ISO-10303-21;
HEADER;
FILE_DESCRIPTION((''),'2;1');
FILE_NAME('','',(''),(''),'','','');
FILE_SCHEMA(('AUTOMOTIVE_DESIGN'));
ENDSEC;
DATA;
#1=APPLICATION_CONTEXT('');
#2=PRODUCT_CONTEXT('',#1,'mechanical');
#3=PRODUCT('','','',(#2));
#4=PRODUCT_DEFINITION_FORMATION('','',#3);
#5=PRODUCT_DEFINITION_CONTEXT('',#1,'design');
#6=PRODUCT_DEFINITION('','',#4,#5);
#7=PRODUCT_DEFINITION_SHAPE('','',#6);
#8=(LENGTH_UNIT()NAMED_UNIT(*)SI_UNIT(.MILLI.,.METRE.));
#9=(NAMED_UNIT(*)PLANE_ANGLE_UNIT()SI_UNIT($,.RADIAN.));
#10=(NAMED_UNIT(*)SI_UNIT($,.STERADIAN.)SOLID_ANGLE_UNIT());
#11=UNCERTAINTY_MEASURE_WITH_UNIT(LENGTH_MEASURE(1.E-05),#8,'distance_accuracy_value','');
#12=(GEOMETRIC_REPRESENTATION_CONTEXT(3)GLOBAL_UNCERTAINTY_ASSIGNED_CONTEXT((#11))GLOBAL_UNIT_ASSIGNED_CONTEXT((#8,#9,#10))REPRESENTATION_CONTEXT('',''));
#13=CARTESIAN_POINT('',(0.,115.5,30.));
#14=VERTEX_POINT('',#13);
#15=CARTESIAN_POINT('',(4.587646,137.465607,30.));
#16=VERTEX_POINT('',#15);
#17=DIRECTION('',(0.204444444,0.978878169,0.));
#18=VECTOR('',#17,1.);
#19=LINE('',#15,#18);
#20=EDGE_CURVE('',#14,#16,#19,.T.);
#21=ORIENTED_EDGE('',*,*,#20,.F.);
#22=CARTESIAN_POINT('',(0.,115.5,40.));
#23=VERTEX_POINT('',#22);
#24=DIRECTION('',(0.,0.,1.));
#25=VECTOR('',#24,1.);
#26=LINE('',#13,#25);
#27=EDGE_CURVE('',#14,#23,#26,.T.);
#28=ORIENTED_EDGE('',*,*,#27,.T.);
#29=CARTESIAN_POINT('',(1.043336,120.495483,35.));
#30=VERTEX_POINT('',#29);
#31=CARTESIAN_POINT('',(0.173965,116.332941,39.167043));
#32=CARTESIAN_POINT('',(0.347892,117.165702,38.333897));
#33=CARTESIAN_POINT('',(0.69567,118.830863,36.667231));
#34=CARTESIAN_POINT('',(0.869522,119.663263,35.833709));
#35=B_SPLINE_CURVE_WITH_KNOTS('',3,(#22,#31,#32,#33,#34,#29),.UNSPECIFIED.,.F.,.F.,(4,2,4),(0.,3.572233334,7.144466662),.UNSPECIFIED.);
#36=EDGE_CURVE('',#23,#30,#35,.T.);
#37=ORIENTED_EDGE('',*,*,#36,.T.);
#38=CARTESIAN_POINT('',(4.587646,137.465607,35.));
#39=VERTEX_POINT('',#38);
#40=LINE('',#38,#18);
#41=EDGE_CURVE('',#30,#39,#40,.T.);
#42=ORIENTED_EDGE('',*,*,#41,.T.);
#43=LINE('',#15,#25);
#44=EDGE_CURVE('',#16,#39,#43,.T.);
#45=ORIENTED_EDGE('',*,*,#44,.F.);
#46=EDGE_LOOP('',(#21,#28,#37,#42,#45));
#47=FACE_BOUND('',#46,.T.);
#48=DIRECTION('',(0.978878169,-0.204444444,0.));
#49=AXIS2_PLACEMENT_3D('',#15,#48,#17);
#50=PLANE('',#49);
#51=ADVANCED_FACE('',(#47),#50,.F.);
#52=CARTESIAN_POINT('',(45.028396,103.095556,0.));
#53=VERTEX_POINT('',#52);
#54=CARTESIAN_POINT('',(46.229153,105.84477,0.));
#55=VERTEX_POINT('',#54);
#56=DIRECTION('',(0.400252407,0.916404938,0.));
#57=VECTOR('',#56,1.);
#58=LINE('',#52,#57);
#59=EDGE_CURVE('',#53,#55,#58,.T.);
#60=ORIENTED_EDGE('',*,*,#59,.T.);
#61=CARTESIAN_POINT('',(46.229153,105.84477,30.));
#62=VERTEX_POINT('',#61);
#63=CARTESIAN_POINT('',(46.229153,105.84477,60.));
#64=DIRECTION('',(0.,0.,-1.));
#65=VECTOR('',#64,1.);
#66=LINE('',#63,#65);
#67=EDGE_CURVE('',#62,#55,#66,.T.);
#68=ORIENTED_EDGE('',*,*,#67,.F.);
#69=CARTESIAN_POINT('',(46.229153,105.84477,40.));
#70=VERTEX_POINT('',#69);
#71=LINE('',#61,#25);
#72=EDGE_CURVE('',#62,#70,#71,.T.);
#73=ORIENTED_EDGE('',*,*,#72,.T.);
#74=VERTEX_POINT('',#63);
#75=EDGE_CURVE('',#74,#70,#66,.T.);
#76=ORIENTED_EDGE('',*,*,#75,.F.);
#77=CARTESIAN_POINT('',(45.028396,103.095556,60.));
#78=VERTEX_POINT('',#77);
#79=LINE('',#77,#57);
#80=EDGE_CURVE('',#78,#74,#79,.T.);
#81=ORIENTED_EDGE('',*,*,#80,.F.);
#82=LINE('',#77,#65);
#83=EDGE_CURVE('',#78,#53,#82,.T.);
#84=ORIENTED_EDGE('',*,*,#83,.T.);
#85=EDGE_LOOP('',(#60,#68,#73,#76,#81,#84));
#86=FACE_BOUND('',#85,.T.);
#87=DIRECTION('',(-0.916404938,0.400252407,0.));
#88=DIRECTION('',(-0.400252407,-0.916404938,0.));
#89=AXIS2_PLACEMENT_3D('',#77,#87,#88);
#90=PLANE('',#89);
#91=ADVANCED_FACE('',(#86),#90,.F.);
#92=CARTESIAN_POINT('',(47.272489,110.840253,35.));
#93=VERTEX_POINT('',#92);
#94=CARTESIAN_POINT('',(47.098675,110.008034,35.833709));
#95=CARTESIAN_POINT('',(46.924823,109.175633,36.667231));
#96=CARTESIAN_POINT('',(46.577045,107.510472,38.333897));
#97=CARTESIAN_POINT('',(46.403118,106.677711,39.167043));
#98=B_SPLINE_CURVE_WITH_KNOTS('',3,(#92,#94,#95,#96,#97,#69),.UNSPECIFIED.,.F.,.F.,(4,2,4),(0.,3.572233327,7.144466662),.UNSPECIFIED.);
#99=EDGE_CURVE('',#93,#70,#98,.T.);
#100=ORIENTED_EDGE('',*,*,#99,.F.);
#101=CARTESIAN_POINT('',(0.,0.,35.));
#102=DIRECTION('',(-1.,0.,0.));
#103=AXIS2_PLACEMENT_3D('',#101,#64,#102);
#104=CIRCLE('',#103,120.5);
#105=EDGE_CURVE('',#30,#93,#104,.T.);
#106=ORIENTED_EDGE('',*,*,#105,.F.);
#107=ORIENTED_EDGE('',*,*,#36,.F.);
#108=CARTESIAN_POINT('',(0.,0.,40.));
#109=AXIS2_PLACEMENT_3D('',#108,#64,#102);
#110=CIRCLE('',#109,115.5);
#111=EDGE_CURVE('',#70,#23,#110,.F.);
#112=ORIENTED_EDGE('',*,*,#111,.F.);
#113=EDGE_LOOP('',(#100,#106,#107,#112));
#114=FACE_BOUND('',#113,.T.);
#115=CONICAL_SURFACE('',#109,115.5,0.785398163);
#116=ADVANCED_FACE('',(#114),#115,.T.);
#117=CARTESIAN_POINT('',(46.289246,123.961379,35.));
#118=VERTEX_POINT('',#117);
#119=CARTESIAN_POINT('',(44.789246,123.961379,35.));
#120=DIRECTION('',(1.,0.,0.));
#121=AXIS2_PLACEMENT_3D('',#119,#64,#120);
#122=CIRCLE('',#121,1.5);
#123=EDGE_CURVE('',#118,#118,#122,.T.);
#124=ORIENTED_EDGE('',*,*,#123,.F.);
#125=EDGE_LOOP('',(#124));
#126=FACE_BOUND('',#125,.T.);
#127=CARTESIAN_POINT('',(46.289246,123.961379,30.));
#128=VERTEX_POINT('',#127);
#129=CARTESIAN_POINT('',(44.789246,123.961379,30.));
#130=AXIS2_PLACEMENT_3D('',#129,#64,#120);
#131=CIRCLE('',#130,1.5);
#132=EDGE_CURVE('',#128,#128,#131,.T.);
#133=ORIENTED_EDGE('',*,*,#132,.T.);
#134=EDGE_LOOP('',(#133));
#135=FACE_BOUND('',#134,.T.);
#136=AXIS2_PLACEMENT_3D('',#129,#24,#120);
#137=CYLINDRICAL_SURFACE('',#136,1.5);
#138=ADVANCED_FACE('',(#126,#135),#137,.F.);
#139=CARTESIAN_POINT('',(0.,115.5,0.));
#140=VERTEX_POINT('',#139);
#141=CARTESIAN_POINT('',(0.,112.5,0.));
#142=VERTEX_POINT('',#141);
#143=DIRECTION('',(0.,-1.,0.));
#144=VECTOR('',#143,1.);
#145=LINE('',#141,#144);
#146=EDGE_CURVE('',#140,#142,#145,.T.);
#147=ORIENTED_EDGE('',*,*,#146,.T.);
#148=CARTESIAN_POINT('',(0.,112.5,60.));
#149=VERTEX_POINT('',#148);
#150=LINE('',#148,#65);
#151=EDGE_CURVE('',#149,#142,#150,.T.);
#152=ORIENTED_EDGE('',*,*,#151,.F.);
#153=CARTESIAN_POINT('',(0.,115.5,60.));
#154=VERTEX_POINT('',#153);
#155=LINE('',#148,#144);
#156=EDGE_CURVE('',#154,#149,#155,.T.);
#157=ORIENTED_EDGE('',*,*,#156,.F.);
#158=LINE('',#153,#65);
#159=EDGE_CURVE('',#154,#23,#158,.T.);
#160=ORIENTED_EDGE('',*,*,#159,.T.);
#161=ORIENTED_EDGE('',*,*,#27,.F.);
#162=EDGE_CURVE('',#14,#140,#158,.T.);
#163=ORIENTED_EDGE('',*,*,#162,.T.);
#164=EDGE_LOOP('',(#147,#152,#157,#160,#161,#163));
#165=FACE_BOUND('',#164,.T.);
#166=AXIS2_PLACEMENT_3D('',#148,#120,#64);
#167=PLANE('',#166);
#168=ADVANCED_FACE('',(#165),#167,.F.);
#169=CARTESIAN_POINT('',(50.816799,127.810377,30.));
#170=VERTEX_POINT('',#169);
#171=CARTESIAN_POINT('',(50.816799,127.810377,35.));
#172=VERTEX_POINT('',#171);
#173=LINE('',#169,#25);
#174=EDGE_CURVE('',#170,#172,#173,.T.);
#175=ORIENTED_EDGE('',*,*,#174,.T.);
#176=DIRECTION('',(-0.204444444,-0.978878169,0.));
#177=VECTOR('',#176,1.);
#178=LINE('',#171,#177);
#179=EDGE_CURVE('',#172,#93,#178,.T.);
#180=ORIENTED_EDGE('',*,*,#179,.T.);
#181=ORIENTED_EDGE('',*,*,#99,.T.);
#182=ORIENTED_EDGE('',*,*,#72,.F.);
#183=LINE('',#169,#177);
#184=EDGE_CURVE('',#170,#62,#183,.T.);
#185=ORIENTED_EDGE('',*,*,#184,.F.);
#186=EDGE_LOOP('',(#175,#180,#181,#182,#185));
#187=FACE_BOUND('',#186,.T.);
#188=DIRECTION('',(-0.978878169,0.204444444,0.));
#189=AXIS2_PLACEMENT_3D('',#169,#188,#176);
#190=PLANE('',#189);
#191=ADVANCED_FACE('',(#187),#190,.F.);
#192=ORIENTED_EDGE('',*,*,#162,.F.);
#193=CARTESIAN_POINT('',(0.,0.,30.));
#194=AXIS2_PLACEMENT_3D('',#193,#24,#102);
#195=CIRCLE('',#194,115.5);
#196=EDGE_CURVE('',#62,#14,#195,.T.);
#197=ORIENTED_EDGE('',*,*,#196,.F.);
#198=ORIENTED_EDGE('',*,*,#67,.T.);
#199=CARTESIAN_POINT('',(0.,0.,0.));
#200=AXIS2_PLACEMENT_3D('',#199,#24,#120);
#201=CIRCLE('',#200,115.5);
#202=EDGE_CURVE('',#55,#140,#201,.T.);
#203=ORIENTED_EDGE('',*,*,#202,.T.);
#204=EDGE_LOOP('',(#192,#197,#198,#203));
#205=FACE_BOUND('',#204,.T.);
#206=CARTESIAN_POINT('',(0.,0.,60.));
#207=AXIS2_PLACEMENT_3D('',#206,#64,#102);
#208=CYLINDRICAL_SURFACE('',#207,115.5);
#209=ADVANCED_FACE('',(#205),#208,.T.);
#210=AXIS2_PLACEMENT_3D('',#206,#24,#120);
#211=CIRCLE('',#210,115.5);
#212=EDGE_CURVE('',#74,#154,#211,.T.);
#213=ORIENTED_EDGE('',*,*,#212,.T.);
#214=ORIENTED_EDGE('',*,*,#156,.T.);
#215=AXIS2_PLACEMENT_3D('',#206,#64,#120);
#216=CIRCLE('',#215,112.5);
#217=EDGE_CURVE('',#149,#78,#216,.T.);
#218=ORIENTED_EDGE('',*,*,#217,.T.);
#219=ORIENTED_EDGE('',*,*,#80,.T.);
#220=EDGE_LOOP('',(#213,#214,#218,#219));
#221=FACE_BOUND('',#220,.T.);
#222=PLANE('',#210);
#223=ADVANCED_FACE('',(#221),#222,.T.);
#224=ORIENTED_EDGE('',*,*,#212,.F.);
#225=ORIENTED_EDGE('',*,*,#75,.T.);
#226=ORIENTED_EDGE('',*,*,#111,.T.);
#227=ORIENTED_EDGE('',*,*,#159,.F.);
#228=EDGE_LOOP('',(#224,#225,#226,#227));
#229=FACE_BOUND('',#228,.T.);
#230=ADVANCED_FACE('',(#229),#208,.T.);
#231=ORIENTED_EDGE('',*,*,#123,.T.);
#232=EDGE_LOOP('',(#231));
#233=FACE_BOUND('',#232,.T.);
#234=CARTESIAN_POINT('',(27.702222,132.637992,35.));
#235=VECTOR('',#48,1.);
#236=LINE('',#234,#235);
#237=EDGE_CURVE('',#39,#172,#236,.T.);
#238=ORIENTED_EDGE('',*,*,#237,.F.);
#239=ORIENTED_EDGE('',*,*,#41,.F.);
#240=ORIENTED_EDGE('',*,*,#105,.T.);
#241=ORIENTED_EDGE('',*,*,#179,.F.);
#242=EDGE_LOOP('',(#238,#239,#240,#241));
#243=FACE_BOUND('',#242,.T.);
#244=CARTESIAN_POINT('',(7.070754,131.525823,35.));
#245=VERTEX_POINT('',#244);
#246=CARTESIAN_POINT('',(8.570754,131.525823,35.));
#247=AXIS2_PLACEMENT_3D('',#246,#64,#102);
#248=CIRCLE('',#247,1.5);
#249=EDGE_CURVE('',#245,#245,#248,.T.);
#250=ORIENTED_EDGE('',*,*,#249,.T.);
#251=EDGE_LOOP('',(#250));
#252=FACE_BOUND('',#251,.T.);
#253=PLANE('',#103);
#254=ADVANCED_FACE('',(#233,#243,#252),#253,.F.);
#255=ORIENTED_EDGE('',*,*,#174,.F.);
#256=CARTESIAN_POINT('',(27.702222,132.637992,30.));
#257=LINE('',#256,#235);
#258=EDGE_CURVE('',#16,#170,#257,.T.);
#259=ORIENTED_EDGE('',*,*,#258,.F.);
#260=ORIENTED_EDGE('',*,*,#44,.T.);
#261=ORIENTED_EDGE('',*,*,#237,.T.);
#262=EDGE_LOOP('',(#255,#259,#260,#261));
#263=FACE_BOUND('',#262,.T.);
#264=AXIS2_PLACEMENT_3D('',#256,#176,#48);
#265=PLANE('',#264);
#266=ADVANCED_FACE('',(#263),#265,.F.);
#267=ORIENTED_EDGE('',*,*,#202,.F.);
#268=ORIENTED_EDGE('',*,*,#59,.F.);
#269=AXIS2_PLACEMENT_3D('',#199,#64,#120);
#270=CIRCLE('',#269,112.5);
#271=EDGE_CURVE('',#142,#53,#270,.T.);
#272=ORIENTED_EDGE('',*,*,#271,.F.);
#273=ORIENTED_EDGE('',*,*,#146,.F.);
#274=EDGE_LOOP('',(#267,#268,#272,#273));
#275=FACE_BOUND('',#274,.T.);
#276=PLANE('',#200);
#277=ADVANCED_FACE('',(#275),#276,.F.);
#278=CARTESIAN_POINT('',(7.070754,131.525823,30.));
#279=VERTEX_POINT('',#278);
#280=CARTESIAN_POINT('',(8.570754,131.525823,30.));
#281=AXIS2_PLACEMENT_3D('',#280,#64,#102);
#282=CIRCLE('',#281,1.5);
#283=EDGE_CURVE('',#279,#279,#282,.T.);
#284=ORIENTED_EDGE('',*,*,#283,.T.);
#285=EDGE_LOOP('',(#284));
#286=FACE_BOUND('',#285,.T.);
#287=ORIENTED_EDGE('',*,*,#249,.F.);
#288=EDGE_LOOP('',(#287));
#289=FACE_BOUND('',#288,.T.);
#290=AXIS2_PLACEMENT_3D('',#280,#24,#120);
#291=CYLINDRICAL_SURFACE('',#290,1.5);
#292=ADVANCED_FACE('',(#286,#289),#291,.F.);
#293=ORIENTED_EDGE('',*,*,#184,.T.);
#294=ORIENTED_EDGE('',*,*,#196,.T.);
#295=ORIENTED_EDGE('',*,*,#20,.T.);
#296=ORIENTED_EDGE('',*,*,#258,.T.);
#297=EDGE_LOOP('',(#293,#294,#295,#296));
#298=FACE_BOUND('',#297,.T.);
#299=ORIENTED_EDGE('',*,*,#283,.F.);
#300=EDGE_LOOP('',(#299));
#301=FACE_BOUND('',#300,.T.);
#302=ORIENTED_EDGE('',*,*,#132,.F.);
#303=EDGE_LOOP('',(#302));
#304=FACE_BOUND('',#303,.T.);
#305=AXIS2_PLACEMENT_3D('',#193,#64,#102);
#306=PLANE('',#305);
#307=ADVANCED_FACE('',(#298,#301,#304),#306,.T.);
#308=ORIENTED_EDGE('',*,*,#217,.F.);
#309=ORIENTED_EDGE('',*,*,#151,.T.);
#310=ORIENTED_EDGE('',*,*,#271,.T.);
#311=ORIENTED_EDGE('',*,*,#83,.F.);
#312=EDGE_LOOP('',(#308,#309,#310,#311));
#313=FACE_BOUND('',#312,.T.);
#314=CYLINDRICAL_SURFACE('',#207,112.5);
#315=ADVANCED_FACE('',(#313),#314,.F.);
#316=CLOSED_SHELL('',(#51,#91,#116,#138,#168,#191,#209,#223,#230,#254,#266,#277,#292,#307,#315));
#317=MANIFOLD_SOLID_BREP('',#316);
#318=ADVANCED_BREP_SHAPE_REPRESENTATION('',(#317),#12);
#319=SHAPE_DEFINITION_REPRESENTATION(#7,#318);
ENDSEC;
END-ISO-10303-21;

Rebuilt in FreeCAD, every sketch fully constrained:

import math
import FreeCAD as App
import Part
import Sketcher
Q = App.Units.Quantity


def edges_at(feature, points):
    """Names of the edges that pass closest to the given points."""
    edges = feature.Shape.Edges
    near = lambda p: min(range(len(edges)), key=lambda i: edges[i].distToShape(Part.Vertex(*p))[0])
    return sorted({f"Edge{near(p) + 1}" for p in points})

doc = App.newDocument("Part")
body = doc.addObject("PartDesign::Body", "Body")

sketch1 = body.newObject("Sketcher::SketchObject", "Sketch")
sketch1.AttachmentSupport = (doc.getObject("XY_Plane"), [""])
sketch1.MapMode = "FlatFace"
sketch1.addGeometry([
    Part.LineSegment(App.Vector(0, 115.5, 0), App.Vector(0, 112.5, 0)),
    Part.ArcOfCircle(Part.Circle(App.Vector(0, 0, 0), App.Vector(0, 0, 1), 112.5), math.radians(66), math.radians(90)),
    Part.LineSegment(App.Vector(45, 103.1, 0), App.Vector(46.2, 105.8, 0)),
    Part.ArcOfCircle(Part.Circle(App.Vector(0, 0, 0), App.Vector(0, 0, 1), 115.5), math.radians(66), math.radians(90)),
], False)
sketch1.addConstraint([
    Sketcher.Constraint("Coincident", 0, 2, 1, 2),
    Sketcher.Constraint("Coincident", 1, 1, 2, 1),
    Sketcher.Constraint("Coincident", 2, 2, 3, 1),
    Sketcher.Constraint("Coincident", 3, 2, 0, 1),
    Sketcher.Constraint("Vertical", 0),
    Sketcher.Constraint("Coincident", 1, 3, -1, 1),
    Sketcher.Constraint("Coincident", 3, 3, -1, 1),
    Sketcher.Constraint("PointOnObject", 0, 2, -2),
    Sketcher.Constraint("Radius", 1, Q("112.5 mm")),
    Sketcher.Constraint("Radius", 3, Q("115.5 mm")),
    Sketcher.Constraint("DistanceY", -1, 1, 2, 2, Q("105.84477 mm")),
    Sketcher.Constraint("DistanceX", -1, 1, 1, 1, Q("45.028396 mm")),
])
pad1 = body.newObject("PartDesign::Pad", "Pad")
pad1.Profile = sketch1
pad1.Length = 60

sketch2 = body.newObject("Sketcher::SketchObject", "Sketch001")
sketch2.AttachmentSupport = (doc.getObject("XY_Plane"), [""])
sketch2.MapMode = "FlatFace"
sketch2.AttachmentOffset = App.Placement(App.Vector(0, 0, 30), App.Rotation())
sketch2.addGeometry([
    Part.LineSegment(App.Vector(4.6, 137.5, 0), App.Vector(27.7, 132.6, 0)),
    Part.LineSegment(App.Vector(27.7, 132.6, 0), App.Vector(50.8, 127.8, 0)),
    Part.LineSegment(App.Vector(50.8, 127.8, 0), App.Vector(46.2, 105.8, 0)),
    Part.ArcOfCircle(Part.Circle(App.Vector(0, 0, 0), App.Vector(0, 0, 1), 115.5), math.radians(66), math.radians(90)),
    Part.LineSegment(App.Vector(0, 115.5, 0), App.Vector(4.6, 137.5, 0)),
    Part.Circle(App.Vector(44.8, 124, 0), App.Vector(0, 0, 1), 1.5),
    Part.Circle(App.Vector(8.6, 131.5, 0), App.Vector(0, 0, 1), 1.5),
], False)
sketch2.addConstraint([
    Sketcher.Constraint("Coincident", 0, 2, 1, 1),
    Sketcher.Constraint("Coincident", 1, 2, 2, 1),
    Sketcher.Constraint("Coincident", 2, 2, 3, 1),
    Sketcher.Constraint("Coincident", 3, 2, 4, 1),
    Sketcher.Constraint("Coincident", 4, 2, 0, 1),
    Sketcher.Constraint("Coincident", 3, 3, -1, 1),
    Sketcher.Constraint("Equal", 5, 6),
    Sketcher.Constraint("PointOnObject", 3, 2, -2),
    Sketcher.Constraint("Parallel", 0, 1),
    Sketcher.Constraint("Perpendicular", 1, 2),
    Sketcher.Constraint("Parallel", 2, 4),
    Sketcher.Constraint("Equal", 0, 1),
    Sketcher.Constraint("Equal", 2, 4),
    Sketcher.Constraint("Diameter", 5, Q("3 mm")),
    Sketcher.Constraint("Radius", 3, Q("115.5 mm")),
    Sketcher.Constraint("DistanceY", 5, 3, 1, 2, Q("3.848998 mm")),
    Sketcher.Constraint("DistanceX", -1, 1, 1, 2, Q("50.816799 mm")),
    Sketcher.Constraint("DistanceX", 6, 3, 2, 2, Q("37.658399 mm")),
    Sketcher.Constraint("DistanceX", 4, 2, 5, 3, Q("40.2016 mm")),
    Sketcher.Constraint("Distance", 2, Q("22.439572 mm")),
    Sketcher.Constraint("DistanceY", 6, 3, 0, 2, Q("1.112169 mm")),
])
pad2 = body.newObject("PartDesign::Pad", "Pad001")
pad2.Profile = sketch2
pad2.Length = 5
doc.recompute()

chamfer = body.newObject("PartDesign::Chamfer", "Chamfer")
chamfer.Base = (pad2, edges_at(pad2, [(23.613, 113.06, 35)]))
chamfer.Size = 5

doc.recompute()
